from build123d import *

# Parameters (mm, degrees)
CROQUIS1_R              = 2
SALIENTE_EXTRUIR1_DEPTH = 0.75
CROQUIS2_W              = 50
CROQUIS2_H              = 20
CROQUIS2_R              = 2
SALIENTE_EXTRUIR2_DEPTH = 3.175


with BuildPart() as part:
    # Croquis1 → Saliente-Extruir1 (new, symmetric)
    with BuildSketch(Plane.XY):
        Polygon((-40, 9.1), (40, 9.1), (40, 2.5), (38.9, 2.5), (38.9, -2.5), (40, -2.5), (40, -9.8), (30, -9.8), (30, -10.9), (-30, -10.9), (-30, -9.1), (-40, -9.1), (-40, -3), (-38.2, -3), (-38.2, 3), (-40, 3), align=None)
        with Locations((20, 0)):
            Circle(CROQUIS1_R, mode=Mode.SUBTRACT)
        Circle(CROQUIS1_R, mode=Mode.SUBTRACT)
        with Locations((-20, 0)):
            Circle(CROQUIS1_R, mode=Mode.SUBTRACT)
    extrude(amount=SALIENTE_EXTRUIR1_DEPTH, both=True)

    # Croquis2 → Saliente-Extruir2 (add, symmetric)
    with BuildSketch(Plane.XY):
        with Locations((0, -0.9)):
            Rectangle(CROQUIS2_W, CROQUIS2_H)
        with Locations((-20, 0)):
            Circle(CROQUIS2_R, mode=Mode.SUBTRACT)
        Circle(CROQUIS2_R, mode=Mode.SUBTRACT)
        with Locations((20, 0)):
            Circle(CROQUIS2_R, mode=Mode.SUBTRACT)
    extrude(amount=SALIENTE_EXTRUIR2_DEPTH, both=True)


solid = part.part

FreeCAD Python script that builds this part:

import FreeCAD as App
import Part
import Sketcher
from FreeCAD import Vector
Q = App.Units.Quantity

doc = App.newDocument("Part")
body = doc.addObject("PartDesign::Body", "Body")

sketch1 = doc.addObject("Sketcher::SketchObject", "Sketch")
body.addObject(sketch1)
sketch1.AttachmentSupport = (doc.XY_Plane, [""])
sketch1.MapMode = "FlatFace"
sketch1.addGeometry([
    Part.LineSegment(Vector(40, 9.1, 0), Vector(-40, 9.1, 0)),
    Part.LineSegment(Vector(-40, 9.1, 0), Vector(-40, 3, 0)),
    Part.LineSegment(Vector(-40, 3, 0), Vector(-38.2, 3, 0)),
    Part.LineSegment(Vector(-38.2, 3, 0), Vector(-38.2, -3, 0)),
    Part.LineSegment(Vector(-38.2, -3, 0), Vector(-40, -3, 0)),
    Part.LineSegment(Vector(-40, -3, 0), Vector(-40, -9.1, 0)),
    Part.LineSegment(Vector(-40, -9.1, 0), Vector(-30, -9.1, 0)),
    Part.LineSegment(Vector(-30, -9.1, 0), Vector(-30, -10.9, 0)),
    Part.LineSegment(Vector(-30, -10.9, 0), Vector(30, -10.9, 0)),
    Part.LineSegment(Vector(30, -10.9, 0), Vector(30, -9.8, 0)),
    Part.LineSegment(Vector(30, -9.8, 0), Vector(40, -9.8, 0)),
    Part.LineSegment(Vector(40, -9.8, 0), Vector(40, -2.5, 0)),
    Part.LineSegment(Vector(40, -2.5, 0), Vector(38.9, -2.5, 0)),
    Part.LineSegment(Vector(38.9, -2.5, 0), Vector(38.9, 2.5, 0)),
    Part.LineSegment(Vector(38.9, 2.5, 0), Vector(40, 2.5, 0)),
    Part.LineSegment(Vector(40, 2.5, 0), Vector(40, 9.1, 0)),
    Part.Circle(Vector(20, 0, 0), Vector(0, 0, 1), 2),
    Part.Circle(Vector(0, 0, 0), Vector(0, 0, 1), 2),
    Part.Circle(Vector(-20, 0, 0), Vector(0, 0, 1), 2),
], False)
sketch1.addConstraint([
    Sketcher.Constraint("Coincident", 0, 2, 1, 1),
    Sketcher.Constraint("Coincident", 1, 2, 2, 1),
    Sketcher.Constraint("Coincident", 2, 2, 3, 1),
    Sketcher.Constraint("Coincident", 3, 2, 4, 1),
    Sketcher.Constraint("Coincident", 4, 2, 5, 1),
    Sketcher.Constraint("Coincident", 5, 2, 6, 1),
    Sketcher.Constraint("Coincident", 6, 2, 7, 1),
    Sketcher.Constraint("Coincident", 7, 2, 8, 1),
    Sketcher.Constraint("Coincident", 8, 2, 9, 1),
    Sketcher.Constraint("Coincident", 9, 2, 10, 1),
    Sketcher.Constraint("Coincident", 10, 2, 11, 1),
    Sketcher.Constraint("Coincident", 11, 2, 12, 1),
    Sketcher.Constraint("Coincident", 12, 2, 13, 1),
    Sketcher.Constraint("Coincident", 13, 2, 14, 1),
    Sketcher.Constraint("Coincident", 14, 2, 15, 1),
    Sketcher.Constraint("Coincident", 15, 2, 0, 1),
    Sketcher.Constraint("Horizontal", 0),
    Sketcher.Constraint("Vertical", 1),
    Sketcher.Constraint("Horizontal", 2),
    Sketcher.Constraint("Vertical", 3),
    Sketcher.Constraint("Horizontal", 4),
    Sketcher.Constraint("Vertical", 5),
    Sketcher.Constraint("Horizontal", 6),
    Sketcher.Constraint("Vertical", 7),
    Sketcher.Constraint("Horizontal", 8),
    Sketcher.Constraint("Vertical", 9),
    Sketcher.Constraint("Horizontal", 10),
    Sketcher.Constraint("Vertical", 11),
    Sketcher.Constraint("Horizontal", 12),
    Sketcher.Constraint("Vertical", 13),
    Sketcher.Constraint("Horizontal", 14),
    Sketcher.Constraint("Vertical", 15),
    Sketcher.Constraint("Coincident", 17, 3, -1, 1),
    Sketcher.Constraint("Equal", 16, 17),
    Sketcher.Constraint("Equal", 17, 18),
    Sketcher.Constraint("Symmetric", 16, 3, 18, 3, -1, 1),
    Sketcher.Constraint("Symmetric", 5, 2, 15, 2, -1, 1),
    Sketcher.Constraint("Symmetric", 1, 2, 4, 2, -1),
    Sketcher.Constraint("Symmetric", 11, 2, 14, 2, -1),
    Sketcher.Constraint("PointOnObject", 16, 3, -1),
    Sketcher.Constraint("Equal", 6, 10),
    Sketcher.Constraint("Equal", 4, 7),
    Sketcher.Constraint("Equal", 14, 9),
    Sketcher.Constraint("Diameter", 16, Q("4 mm")),
    Sketcher.Constraint("DistanceX", 0, 2, 0, 1, Q("80 mm")),
    Sketcher.Constraint("DistanceX", 6, 1, 6, 2, Q("10 mm")),
    Sketcher.Constraint("DistanceY", 3, 2, 3, 1, Q("6 mm")),
    Sketcher.Constraint("DistanceY", 13, 1, 13, 2, Q("5 mm")),
    Sketcher.Constraint("DistanceX", 2, 1, 2, 2, Q("1.8 mm")),
    Sketcher.Constraint("DistanceX", 12, 2, 12, 1, Q("1.1 mm")),
    Sketcher.Constraint("DistanceY", 1, 2, 1, 1, Q("6.1 mm")),
    Sketcher.Constraint("DistanceX", -1, 1, 16, 3, Q("20 mm")),
])
pad1 = doc.addObject("PartDesign::Pad", "Pad")
body.addObject(pad1)
pad1.Profile = sketch1
pad1.Length = 1.5
pad1.Midplane = True

sketch2 = doc.addObject("Sketcher::SketchObject", "Sketch001")
body.addObject(sketch2)
sketch2.AttachmentSupport = (doc.XY_Plane, [""])
sketch2.MapMode = "FlatFace"
sketch2.addGeometry([
    Part.LineSegment(Vector(-25, 9.1, 0), Vector(-25, -10.9, 0)),
    Part.LineSegment(Vector(-25, -10.9, 0), Vector(25, -10.9, 0)),
    Part.LineSegment(Vector(25, -10.9, 0), Vector(25, 9.1, 0)),
    Part.LineSegment(Vector(25, 9.1, 0), Vector(-25, 9.1, 0)),
    Part.Circle(Vector(-20, 0, 0), Vector(0, 0, 1), 2),
    Part.Circle(Vector(0, 0, 0), Vector(0, 0, 1), 2),
    Part.Circle(Vector(20, 0, 0), Vector(0, 0, 1), 2),
], False)
sketch2.addConstraint([
    Sketcher.Constraint("Coincident", 0, 2, 1, 1),
    Sketcher.Constraint("Coincident", 1, 2, 2, 1),
    Sketcher.Constraint("Coincident", 2, 2, 3, 1),
    Sketcher.Constraint("Coincident", 3, 2, 0, 1),
    Sketcher.Constraint("Vertical", 0),
    Sketcher.Constraint("Horizontal", 1),
    Sketcher.Constraint("Vertical", 2),
    Sketcher.Constraint("Horizontal", 3),
    Sketcher.Constraint("Coincident", 5, 3, -1, 1),
    Sketcher.Constraint("Equal", 4, 5),
    Sketcher.Constraint("Equal", 5, 6),
    Sketcher.Constraint("Symmetric", 4, 3, 6, 3, -1, 1),
    Sketcher.Constraint("PointOnObject", 4, 3, -1),
    Sketcher.Constraint("Diameter", 4, Q("4 mm")),
    Sketcher.Constraint("DistanceX", 1, 1, 1, 2, Q("50 mm")),
    Sketcher.Constraint("DistanceY", 0, 2, 0, 1, Q("20 mm")),
    Sketcher.Constraint("DistanceX", 4, 3, -1, 1, Q("20 mm")),
    Sketcher.Constraint("DistanceX", 0, 2, -1, 1, Q("25 mm")),
    Sketcher.Constraint("DistanceY", 0, 2, -1, 1, Q("10.9 mm")),
])
pad2 = doc.addObject("PartDesign::Pad", "Pad001")
body.addObject(pad2)
pad2.Profile = sketch2
pad2.Length = 6.35
pad2.Midplane = True

doc.recompute()
